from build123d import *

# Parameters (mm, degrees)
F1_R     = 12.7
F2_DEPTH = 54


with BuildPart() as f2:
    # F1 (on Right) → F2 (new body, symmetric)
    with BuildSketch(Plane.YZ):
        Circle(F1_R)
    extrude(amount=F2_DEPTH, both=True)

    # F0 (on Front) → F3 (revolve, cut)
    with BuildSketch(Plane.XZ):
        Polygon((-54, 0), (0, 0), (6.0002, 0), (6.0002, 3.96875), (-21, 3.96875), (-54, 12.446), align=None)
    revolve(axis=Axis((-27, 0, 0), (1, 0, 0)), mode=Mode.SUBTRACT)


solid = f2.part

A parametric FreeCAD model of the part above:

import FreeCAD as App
import Part
import Sketcher

V = App.Vector
Q = App.Units.Quantity


def add_polygon(sketch, points):
    """Adds a closed chain of lines whose ends are joined by coincident constraints."""
    first, n = sketch.GeometryCount, len(points)
    for a, b in zip(points, points[1:] + points[:1]):
        sketch.addGeometry(Part.LineSegment(App.Vector(*a, 0), App.Vector(*b, 0)), False)
    for i in range(n):
        sketch.addConstraint(Sketcher.Constraint("Coincident", first + i, 2, first + (i + 1) % n, 1))

doc = App.newDocument("Part")
body = doc.addObject("PartDesign::Body", "Body")

sketch1 = body.newObject("Sketcher::SketchObject", "Sketch")
sketch1.AttachmentSupport = (doc.getObject("YZ_Plane"), [""])
sketch1.MapMode = "FlatFace"
sketch1.addGeometry(Part.Circle(V(0, 0, 0), V(0, 0, 1), 12.7), False)
sketch1.addConstraint([
    Sketcher.Constraint("Coincident", 0, 3, -1, 1),
    Sketcher.Constraint("Diameter", 0, Q("1 in")),
])
pad1 = body.newObject("PartDesign::Pad", "Pad")
pad1.Profile = sketch1
pad1.Length = 108
pad1.Midplane = True

sketch2 = body.newObject("Sketcher::SketchObject", "Sketch001")
sketch2.AttachmentSupport = (doc.getObject("XZ_Plane"), [""])
sketch2.MapMode = "FlatFace"
add_polygon(sketch2, [(-54, 0), (6.0002, 0), (6.0002, 3.96875), (-21, 3.96875), (-54, 12.446)])
sketch2.addConstraint([
    Sketcher.Constraint("Horizontal", 0),
    Sketcher.Constraint("Vertical", 1),
    Sketcher.Constraint("Horizontal", 2),
    Sketcher.Constraint("Vertical", 4),
    Sketcher.Constraint("PointOnObject", 0, 2, -1),
    Sketcher.Constraint("DistanceY", 4, 2, 4, 1, Q("0.49 in")),
    Sketcher.Constraint("DistanceX", 2, 2, 2, 1, Q("1.063 in")),
    Sketcher.Constraint("DistanceY", 1, 1, 1, 2, Q("0.15625 in")),
    Sketcher.Constraint("DistanceX", 0, 1, 0, 2, Q("60.0002 mm")),
    Sketcher.Constraint("DistanceX", -1, 1, 0, 2, Q("6.0002 mm")),
])
groove = body.newObject("PartDesign::Groove", "Groove")
groove.Profile = sketch2
groove.ReferenceAxis = (sketch2, ["H_Axis"])
groove.Angle = 360

doc.recompute()
